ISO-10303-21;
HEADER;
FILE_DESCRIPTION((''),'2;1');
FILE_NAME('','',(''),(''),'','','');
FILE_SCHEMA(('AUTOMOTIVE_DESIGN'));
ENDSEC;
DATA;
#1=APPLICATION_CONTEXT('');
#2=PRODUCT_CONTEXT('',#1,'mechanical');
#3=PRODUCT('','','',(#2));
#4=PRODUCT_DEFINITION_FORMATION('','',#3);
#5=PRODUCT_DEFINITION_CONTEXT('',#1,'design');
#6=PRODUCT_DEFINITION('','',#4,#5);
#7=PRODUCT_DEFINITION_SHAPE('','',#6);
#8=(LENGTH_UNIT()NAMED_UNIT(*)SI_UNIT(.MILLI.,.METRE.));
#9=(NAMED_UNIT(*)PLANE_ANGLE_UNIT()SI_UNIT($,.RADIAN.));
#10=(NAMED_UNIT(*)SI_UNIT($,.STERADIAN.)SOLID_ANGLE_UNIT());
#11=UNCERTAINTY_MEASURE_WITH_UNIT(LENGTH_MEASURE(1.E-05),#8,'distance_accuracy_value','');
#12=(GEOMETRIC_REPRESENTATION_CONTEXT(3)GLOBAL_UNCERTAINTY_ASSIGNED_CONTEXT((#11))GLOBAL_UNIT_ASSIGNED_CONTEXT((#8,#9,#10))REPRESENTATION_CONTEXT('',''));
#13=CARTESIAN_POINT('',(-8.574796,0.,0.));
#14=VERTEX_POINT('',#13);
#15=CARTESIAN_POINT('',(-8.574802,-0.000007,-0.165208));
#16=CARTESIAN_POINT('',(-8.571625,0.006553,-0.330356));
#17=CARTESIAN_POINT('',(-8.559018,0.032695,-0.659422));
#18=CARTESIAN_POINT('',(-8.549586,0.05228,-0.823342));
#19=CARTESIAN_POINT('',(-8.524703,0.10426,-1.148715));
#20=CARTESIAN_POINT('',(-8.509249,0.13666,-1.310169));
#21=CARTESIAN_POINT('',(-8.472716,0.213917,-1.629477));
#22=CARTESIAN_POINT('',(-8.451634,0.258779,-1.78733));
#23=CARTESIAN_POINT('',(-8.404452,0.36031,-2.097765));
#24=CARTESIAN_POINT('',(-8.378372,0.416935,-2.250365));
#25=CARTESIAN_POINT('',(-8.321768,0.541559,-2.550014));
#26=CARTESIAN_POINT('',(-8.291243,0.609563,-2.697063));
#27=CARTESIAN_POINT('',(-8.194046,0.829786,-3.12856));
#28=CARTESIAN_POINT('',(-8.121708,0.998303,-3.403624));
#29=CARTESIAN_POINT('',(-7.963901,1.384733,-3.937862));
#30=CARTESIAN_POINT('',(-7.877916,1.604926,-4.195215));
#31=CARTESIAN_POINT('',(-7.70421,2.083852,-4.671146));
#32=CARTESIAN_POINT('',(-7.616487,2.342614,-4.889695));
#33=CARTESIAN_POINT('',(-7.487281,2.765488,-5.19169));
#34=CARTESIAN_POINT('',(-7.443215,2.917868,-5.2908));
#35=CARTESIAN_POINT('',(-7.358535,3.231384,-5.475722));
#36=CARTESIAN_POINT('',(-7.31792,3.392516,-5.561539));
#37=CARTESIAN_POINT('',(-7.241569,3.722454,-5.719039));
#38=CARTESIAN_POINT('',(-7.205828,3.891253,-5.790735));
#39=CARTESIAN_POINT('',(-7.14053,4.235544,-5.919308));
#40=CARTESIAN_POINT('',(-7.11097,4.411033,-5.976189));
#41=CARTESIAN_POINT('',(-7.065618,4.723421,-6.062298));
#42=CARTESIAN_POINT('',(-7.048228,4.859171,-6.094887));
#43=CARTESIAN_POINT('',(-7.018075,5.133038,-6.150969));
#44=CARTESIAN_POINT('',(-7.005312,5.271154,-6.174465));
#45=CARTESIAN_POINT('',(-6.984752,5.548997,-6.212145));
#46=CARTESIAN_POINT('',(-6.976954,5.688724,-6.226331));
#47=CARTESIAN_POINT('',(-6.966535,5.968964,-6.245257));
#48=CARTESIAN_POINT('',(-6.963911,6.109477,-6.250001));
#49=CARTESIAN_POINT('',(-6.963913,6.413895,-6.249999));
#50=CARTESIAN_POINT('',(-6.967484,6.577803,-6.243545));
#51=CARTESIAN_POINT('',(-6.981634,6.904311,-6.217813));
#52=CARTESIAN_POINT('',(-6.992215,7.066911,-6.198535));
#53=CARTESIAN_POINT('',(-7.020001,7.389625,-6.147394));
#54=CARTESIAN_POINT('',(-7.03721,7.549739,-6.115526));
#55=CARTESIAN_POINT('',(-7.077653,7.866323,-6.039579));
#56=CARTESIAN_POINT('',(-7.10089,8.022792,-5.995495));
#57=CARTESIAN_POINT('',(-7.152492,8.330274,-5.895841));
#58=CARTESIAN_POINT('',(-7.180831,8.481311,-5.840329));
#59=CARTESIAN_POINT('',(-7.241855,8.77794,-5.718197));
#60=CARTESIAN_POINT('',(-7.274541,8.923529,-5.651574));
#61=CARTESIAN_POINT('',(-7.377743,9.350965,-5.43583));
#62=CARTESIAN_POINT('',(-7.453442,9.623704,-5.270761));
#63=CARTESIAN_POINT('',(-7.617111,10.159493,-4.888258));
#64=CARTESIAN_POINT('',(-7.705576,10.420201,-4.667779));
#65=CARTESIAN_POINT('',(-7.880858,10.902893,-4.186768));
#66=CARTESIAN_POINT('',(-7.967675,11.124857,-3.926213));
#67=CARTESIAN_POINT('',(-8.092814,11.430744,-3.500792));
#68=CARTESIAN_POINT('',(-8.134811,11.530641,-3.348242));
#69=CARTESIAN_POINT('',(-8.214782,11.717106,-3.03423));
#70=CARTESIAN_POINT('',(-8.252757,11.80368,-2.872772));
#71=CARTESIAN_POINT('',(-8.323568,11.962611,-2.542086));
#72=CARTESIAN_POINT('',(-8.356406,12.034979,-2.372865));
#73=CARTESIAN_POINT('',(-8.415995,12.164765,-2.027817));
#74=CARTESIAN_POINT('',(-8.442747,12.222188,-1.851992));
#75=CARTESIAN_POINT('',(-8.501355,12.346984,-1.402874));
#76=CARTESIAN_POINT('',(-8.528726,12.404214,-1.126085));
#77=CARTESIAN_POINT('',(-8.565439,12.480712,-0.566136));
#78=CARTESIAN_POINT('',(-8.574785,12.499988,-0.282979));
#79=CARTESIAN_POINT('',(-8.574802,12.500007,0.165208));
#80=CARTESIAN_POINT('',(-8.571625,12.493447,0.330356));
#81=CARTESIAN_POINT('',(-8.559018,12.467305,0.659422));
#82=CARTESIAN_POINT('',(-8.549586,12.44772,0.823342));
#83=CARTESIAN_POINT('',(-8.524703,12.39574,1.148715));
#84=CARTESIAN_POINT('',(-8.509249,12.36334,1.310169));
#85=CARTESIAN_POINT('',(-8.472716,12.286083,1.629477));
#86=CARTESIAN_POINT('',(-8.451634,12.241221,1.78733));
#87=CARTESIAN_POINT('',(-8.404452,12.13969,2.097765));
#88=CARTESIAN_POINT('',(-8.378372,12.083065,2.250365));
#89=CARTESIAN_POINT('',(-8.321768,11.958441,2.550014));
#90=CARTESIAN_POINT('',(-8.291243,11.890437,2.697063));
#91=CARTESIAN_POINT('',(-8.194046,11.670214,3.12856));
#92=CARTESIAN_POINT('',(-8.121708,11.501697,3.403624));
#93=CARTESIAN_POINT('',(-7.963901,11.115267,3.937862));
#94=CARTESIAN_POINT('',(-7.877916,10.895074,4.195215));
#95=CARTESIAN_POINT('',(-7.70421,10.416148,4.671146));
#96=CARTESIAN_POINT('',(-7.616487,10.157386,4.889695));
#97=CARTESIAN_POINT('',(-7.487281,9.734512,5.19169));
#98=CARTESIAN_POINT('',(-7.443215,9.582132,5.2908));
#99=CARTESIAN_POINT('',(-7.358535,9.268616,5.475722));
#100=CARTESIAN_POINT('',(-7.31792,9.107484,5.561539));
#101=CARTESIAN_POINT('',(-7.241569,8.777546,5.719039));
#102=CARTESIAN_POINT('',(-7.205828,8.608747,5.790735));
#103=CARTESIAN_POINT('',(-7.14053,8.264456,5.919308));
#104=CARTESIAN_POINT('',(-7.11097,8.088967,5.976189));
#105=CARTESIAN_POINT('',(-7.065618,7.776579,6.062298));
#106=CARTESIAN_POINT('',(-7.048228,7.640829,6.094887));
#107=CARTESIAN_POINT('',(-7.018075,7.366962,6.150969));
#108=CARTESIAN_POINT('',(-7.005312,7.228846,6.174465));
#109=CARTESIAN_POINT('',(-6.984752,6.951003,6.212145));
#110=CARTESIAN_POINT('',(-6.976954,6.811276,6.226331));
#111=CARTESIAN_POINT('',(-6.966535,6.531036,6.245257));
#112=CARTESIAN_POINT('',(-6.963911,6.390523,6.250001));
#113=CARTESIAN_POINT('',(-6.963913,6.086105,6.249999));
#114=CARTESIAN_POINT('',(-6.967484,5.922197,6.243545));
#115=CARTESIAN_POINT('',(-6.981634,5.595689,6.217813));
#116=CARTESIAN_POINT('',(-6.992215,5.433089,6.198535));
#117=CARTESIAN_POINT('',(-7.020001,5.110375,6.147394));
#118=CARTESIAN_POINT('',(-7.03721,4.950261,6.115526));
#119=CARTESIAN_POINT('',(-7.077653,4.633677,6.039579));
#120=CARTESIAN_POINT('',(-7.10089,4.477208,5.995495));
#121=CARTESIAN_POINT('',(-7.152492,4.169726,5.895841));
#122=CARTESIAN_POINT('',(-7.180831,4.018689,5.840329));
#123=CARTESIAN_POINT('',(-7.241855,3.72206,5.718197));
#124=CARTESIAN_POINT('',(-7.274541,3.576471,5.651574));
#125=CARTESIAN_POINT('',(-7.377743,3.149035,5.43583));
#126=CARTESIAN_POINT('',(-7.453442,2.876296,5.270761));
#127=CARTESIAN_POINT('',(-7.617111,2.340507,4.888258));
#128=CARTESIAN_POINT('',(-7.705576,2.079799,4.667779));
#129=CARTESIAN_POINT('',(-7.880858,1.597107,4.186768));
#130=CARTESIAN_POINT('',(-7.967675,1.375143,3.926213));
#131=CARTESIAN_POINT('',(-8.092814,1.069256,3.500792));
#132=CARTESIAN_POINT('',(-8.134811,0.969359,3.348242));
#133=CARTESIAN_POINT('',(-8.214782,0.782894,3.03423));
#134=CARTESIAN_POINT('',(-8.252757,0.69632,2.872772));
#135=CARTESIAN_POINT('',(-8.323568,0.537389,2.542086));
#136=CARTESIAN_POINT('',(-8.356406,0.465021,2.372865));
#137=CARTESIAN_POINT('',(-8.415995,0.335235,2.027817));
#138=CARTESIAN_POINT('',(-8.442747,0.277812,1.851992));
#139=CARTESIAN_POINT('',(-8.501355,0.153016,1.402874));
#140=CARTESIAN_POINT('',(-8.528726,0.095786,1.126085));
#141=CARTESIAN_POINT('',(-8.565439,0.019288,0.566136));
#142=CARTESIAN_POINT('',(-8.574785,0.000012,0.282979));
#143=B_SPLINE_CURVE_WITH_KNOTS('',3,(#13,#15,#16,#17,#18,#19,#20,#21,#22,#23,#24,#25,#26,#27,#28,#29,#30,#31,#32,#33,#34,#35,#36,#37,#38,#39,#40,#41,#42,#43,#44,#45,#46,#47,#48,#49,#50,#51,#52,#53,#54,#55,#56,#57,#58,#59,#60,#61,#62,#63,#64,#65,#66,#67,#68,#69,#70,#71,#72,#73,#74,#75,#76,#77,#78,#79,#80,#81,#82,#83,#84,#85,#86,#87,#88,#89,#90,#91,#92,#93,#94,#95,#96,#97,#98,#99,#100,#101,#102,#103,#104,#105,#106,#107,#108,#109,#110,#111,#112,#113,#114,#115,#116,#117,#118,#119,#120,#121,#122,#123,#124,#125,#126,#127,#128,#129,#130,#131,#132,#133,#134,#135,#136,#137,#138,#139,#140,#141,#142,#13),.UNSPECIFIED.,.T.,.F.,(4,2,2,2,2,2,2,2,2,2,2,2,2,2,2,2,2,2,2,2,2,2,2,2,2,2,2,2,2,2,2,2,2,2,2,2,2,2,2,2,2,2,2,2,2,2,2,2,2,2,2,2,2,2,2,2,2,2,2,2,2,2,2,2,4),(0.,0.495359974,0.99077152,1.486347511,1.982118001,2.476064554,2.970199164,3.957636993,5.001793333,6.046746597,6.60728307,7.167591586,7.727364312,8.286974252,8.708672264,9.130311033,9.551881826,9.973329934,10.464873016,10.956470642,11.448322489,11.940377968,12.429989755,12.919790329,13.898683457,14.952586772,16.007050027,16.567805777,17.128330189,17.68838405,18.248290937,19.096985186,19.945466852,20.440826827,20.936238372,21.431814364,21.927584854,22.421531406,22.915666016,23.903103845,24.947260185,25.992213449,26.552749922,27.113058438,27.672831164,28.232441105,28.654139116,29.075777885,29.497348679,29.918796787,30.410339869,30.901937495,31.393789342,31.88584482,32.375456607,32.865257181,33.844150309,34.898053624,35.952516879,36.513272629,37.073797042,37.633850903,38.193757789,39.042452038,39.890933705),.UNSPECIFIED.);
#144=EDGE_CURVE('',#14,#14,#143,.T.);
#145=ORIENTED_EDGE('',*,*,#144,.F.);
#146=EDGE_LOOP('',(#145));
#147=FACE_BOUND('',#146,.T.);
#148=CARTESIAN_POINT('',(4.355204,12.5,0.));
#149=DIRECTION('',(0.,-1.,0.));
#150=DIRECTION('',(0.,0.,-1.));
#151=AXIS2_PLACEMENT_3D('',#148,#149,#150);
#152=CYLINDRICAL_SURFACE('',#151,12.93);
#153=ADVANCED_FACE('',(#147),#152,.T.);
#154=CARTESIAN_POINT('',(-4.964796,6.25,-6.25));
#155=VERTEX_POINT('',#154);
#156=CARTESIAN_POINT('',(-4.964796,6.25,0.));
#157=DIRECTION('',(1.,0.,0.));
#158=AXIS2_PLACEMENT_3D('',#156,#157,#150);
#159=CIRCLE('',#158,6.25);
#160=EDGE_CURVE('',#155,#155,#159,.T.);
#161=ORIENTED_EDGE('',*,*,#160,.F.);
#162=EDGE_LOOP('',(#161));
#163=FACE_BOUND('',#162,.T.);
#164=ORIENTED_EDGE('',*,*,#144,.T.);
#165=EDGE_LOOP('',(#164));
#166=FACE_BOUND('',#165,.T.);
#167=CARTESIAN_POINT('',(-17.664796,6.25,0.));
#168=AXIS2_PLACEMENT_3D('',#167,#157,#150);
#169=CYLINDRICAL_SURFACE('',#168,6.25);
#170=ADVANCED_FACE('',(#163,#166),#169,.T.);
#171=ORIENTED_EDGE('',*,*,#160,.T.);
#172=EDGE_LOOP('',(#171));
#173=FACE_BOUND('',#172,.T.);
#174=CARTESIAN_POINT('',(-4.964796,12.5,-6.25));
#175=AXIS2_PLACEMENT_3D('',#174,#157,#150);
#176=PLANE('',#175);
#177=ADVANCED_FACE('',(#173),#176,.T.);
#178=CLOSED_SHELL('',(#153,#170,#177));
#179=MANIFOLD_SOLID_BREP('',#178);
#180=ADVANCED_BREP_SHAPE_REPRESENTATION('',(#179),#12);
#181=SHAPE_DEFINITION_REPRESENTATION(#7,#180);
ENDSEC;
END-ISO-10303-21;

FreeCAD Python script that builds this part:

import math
import FreeCAD as App
import Part
import Sketcher

V = App.Vector

doc = App.newDocument("Part")
body = doc.addObject("PartDesign::Body", "Body")

# Sketch on XZ plane
sketch1 = body.newObject("Sketcher::SketchObject", "Sketch")
sketch1.AttachmentSupport = (doc.getObject("XZ_Plane"), [""])
sketch1.MapMode = "FlatFace"
sketch1.addGeometry(Part.LineSegment(V(-4.964796, -6.25, 0), V(-6.963912, -6.25, 0)), False)
sketch1.addGeometry(Part.ArcOfCircle(Part.Circle(V(4.355204, 0, 0), V(0, 0, 1), 12.93), math.radians(151.094135), math.radians(208.905865)), False)
sketch1.addGeometry(Part.LineSegment(V(-6.963912, 6.25, 0), V(-4.964796, 6.25, 0)), False)
sketch1.addGeometry(Part.LineSegment(V(-4.964796, 6.25, 0), V(-4.964796, -6.25, 0)), False)
sketch1.addConstraint(Sketcher.Constraint("Coincident", 0, 2, 1, 2))
sketch1.addConstraint(Sketcher.Constraint("Coincident", 1, 1, 2, 1))
sketch1.addConstraint(Sketcher.Constraint("Coincident", 2, 2, 3, 1))
sketch1.addConstraint(Sketcher.Constraint("Coincident", 3, 2, 0, 1))
sketch1.addConstraint(Sketcher.Constraint("Horizontal", 0))
sketch1.addConstraint(Sketcher.Constraint("Horizontal", 2))
sketch1.addConstraint(Sketcher.Constraint("Vertical", 3))
sketch1.addConstraint(Sketcher.Constraint("Symmetric", 0, 2, 1, 1, -1))
sketch1.addConstraint(Sketcher.Constraint("Radius", 1, 12.93))
sketch1.addConstraint(Sketcher.Constraint("DistanceY", 3, 2, 3, 1, 12.5))
sketch1.addConstraint(Sketcher.Constraint("DistanceX", 2, 2, 1, 3, 9.32))
sketch1.addConstraint(Sketcher.Constraint("DistanceX", -1, 1, 1, 3, 4.355204))
pad1 = body.newObject("PartDesign::Pad", "Pad")
pad1.Profile = sketch1
pad1.Length = 12.5
pad1.Reversed = True

# Sketch on YZ plane
sketch2 = body.newObject("Sketcher::SketchObject", "Sketch001")
sketch2.AttachmentSupport = (doc.getObject("YZ_Plane"), [""])
sketch2.MapMode = "FlatFace"
sketch2.AttachmentOffset = App.Placement(V(0, 0, -4.964796), App.Rotation())
sketch2.addGeometry(Part.LineSegment(V(12.5, 6.25, 0), V(6.25, 6.25, 0)), False)
sketch2.addGeometry(Part.ArcOfCircle(Part.Circle(V(6.25, 0, 0), V(0, 0, 1), 6.25), math.radians(0), math.radians(90)), False)
sketch2.addGeometry(Part.LineSegment(V(12.5, 0, 0), V(12.5, 6.25, 0)), False)
sketch2.addGeometry(Part.ArcOfCircle(Part.Circle(V(6.25, 0, 0), V(0, 0, 1), 6.25), math.radians(-90), math.radians(0)), False)
sketch2.addGeometry(Part.LineSegment(V(6.25, -6.25, 0), V(12.5, -6.25, 0)), False)
sketch2.addGeometry(Part.LineSegment(V(12.5, -6.25, 0), V(12.5, 0, 0)), False)
sketch2.addGeometry(Part.ArcOfCircle(Part.Circle(V(6.25, 0, 0), V(0, 0, 1), 6.25), math.radians(-180), math.radians(-90)), False)
sketch2.addGeometry(Part.LineSegment(V(0, 0, 0), V(0, -6.25, 0)), False)
sketch2.addGeometry(Part.LineSegment(V(0, -6.25, 0), V(6.25, -6.25, 0)), False)
sketch2.addGeometry(Part.LineSegment(V(6.25, 6.25, 0), V(0, 6.25, 0)), False)
sketch2.addGeometry(Part.LineSegment(V(0, 6.25, 0), V(0, 0, 0)), False)
sketch2.addGeometry(Part.ArcOfCircle(Part.Circle(V(6.25, 0, 0), V(0, 0, 1), 6.25), math.radians(90), math.radians(180)), False)
sketch2.addConstraint(Sketcher.Constraint("Tangent", 0, 2, 1, 2))
sketch2.addConstraint(Sketcher.Constraint("Tangent", 1, 1, 2, 1))
sketch2.addConstraint(Sketcher.Constraint("Coincident", 2, 2, 0, 1))
sketch2.addConstraint(Sketcher.Constraint("Tangent", 3, 1, 4, 1))
sketch2.addConstraint(Sketcher.Constraint("Coincident", 4, 2, 5, 1))
sketch2.addConstraint(Sketcher.Constraint("Tangent", 5, 2, 3, 2))
sketch2.addConstraint(Sketcher.Constraint("Tangent", 6, 1, 7, 1))
sketch2.addConstraint(Sketcher.Constraint("Coincident", 7, 2, 8, 1))
sketch2.addConstraint(Sketcher.Constraint("Tangent", 8, 2, 6, 2))
sketch2.addConstraint(Sketcher.Constraint("Coincident", 9, 2, 10, 1))
sketch2.addConstraint(Sketcher.Constraint("Tangent", 10, 2, 11, 2))
sketch2.addConstraint(Sketcher.Constraint("Tangent", 11, 1, 9, 1))
sketch2.addConstraint(Sketcher.Constraint("Horizontal", 0))
sketch2.addConstraint(Sketcher.Constraint("Vertical", 2))
sketch2.addConstraint(Sketcher.Constraint("Horizontal", 4))
sketch2.addConstraint(Sketcher.Constraint("Vertical", 5))
sketch2.addConstraint(Sketcher.Constraint("Vertical", 7))
sketch2.addConstraint(Sketcher.Constraint("Horizontal", 8))
sketch2.addConstraint(Sketcher.Constraint("Horizontal", 9))
sketch2.addConstraint(Sketcher.Constraint("Vertical", 10))
sketch2.addConstraint(Sketcher.Constraint("Coincident", 6, 1, -1, 1))
sketch2.addConstraint(Sketcher.Constraint("Coincident", 10, 2, -1, 1))
sketch2.addConstraint(Sketcher.Constraint("Coincident", 3, 3, 1, 3))
sketch2.addConstraint(Sketcher.Constraint("Coincident", 6, 3, 1, 3))
sketch2.addConstraint(Sketcher.Constraint("Coincident", 11, 1, 0, 2))
sketch2.addConstraint(Sketcher.Constraint("Equal", 1, 3))
sketch2.addConstraint(Sketcher.Constraint("Radius", 1, 6.25))
pocket1 = body.newObject("PartDesign::Pocket", "Pocket")
pocket1.Profile = sketch2
pocket1.Length = 12.7

doc.recompute()
